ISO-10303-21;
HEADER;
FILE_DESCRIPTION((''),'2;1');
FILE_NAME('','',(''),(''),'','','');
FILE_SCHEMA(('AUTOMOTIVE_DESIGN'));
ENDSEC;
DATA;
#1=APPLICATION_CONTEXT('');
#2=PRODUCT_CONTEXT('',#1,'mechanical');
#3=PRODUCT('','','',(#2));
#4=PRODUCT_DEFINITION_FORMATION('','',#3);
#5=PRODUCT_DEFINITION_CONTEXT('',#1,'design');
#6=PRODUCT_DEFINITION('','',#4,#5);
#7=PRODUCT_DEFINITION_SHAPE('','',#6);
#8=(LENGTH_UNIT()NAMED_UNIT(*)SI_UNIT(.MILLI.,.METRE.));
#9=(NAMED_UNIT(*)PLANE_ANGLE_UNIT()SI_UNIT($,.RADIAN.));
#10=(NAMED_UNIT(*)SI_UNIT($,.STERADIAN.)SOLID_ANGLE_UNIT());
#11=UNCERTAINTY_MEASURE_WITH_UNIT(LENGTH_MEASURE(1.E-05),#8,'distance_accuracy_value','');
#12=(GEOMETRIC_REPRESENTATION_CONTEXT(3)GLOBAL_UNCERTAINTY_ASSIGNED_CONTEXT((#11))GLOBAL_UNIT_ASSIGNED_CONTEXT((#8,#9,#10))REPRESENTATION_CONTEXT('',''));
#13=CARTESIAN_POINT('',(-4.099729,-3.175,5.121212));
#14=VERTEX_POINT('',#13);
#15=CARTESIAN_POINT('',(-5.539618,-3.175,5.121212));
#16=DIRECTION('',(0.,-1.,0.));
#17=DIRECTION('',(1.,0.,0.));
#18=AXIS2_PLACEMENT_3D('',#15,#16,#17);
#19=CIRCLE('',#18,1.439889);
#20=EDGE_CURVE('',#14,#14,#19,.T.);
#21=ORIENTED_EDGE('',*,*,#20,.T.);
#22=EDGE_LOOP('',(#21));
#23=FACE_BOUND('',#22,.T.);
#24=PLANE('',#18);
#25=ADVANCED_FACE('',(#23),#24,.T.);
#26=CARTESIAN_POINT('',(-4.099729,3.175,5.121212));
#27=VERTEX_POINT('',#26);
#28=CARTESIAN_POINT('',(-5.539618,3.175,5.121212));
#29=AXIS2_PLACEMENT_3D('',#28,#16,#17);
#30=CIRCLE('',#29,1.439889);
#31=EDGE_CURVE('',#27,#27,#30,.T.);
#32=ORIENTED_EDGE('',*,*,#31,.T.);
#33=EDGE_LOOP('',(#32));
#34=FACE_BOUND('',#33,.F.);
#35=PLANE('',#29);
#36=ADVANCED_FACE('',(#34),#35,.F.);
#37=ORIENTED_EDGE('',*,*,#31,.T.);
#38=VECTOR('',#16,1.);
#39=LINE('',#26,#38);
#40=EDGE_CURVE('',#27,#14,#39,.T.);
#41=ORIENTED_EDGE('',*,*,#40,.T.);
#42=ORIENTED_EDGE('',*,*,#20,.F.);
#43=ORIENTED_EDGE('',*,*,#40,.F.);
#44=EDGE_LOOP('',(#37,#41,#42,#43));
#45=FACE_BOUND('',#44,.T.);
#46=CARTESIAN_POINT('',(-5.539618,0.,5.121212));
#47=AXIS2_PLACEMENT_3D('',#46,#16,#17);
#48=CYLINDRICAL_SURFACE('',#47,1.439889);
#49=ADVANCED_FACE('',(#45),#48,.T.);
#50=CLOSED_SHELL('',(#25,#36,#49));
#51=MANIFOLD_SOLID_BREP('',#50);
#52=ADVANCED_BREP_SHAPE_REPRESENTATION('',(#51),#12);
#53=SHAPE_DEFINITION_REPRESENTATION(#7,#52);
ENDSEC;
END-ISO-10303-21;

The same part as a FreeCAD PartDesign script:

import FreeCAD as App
import Part
import Sketcher

V = App.Vector
Q = App.Units.Quantity

doc = App.newDocument("Part")
body = doc.addObject("PartDesign::Body", "Body")

# Sketch on XZ plane
sketch1 = body.newObject("Sketcher::SketchObject", "Sketch")
sketch1.AttachmentSupport = (doc.getObject("XZ_Plane"), [""])
sketch1.MapMode = "FlatFace"
sketch1.addGeometry(Part.Circle(V(-5.5, 5.1, 0), V(0, 0, 1), 1.4), False)
sketch1.addConstraint(Sketcher.Constraint("Diameter", 0, Q("2.879778 mm")))
sketch1.addConstraint(Sketcher.Constraint("DistanceX", 0, 3, -1, 1, Q("5.539618 mm")))
sketch1.addConstraint(Sketcher.Constraint("DistanceY", -1, 1, 0, 3, Q("5.121212 mm")))
pad1 = body.newObject("PartDesign::Pad", "Pad")
pad1.Profile = sketch1
pad1.Type = "TwoLengths"
pad1.Length = Q("0.125 in")
pad1.Length2 = Q("0.125 in")

doc.recompute()
